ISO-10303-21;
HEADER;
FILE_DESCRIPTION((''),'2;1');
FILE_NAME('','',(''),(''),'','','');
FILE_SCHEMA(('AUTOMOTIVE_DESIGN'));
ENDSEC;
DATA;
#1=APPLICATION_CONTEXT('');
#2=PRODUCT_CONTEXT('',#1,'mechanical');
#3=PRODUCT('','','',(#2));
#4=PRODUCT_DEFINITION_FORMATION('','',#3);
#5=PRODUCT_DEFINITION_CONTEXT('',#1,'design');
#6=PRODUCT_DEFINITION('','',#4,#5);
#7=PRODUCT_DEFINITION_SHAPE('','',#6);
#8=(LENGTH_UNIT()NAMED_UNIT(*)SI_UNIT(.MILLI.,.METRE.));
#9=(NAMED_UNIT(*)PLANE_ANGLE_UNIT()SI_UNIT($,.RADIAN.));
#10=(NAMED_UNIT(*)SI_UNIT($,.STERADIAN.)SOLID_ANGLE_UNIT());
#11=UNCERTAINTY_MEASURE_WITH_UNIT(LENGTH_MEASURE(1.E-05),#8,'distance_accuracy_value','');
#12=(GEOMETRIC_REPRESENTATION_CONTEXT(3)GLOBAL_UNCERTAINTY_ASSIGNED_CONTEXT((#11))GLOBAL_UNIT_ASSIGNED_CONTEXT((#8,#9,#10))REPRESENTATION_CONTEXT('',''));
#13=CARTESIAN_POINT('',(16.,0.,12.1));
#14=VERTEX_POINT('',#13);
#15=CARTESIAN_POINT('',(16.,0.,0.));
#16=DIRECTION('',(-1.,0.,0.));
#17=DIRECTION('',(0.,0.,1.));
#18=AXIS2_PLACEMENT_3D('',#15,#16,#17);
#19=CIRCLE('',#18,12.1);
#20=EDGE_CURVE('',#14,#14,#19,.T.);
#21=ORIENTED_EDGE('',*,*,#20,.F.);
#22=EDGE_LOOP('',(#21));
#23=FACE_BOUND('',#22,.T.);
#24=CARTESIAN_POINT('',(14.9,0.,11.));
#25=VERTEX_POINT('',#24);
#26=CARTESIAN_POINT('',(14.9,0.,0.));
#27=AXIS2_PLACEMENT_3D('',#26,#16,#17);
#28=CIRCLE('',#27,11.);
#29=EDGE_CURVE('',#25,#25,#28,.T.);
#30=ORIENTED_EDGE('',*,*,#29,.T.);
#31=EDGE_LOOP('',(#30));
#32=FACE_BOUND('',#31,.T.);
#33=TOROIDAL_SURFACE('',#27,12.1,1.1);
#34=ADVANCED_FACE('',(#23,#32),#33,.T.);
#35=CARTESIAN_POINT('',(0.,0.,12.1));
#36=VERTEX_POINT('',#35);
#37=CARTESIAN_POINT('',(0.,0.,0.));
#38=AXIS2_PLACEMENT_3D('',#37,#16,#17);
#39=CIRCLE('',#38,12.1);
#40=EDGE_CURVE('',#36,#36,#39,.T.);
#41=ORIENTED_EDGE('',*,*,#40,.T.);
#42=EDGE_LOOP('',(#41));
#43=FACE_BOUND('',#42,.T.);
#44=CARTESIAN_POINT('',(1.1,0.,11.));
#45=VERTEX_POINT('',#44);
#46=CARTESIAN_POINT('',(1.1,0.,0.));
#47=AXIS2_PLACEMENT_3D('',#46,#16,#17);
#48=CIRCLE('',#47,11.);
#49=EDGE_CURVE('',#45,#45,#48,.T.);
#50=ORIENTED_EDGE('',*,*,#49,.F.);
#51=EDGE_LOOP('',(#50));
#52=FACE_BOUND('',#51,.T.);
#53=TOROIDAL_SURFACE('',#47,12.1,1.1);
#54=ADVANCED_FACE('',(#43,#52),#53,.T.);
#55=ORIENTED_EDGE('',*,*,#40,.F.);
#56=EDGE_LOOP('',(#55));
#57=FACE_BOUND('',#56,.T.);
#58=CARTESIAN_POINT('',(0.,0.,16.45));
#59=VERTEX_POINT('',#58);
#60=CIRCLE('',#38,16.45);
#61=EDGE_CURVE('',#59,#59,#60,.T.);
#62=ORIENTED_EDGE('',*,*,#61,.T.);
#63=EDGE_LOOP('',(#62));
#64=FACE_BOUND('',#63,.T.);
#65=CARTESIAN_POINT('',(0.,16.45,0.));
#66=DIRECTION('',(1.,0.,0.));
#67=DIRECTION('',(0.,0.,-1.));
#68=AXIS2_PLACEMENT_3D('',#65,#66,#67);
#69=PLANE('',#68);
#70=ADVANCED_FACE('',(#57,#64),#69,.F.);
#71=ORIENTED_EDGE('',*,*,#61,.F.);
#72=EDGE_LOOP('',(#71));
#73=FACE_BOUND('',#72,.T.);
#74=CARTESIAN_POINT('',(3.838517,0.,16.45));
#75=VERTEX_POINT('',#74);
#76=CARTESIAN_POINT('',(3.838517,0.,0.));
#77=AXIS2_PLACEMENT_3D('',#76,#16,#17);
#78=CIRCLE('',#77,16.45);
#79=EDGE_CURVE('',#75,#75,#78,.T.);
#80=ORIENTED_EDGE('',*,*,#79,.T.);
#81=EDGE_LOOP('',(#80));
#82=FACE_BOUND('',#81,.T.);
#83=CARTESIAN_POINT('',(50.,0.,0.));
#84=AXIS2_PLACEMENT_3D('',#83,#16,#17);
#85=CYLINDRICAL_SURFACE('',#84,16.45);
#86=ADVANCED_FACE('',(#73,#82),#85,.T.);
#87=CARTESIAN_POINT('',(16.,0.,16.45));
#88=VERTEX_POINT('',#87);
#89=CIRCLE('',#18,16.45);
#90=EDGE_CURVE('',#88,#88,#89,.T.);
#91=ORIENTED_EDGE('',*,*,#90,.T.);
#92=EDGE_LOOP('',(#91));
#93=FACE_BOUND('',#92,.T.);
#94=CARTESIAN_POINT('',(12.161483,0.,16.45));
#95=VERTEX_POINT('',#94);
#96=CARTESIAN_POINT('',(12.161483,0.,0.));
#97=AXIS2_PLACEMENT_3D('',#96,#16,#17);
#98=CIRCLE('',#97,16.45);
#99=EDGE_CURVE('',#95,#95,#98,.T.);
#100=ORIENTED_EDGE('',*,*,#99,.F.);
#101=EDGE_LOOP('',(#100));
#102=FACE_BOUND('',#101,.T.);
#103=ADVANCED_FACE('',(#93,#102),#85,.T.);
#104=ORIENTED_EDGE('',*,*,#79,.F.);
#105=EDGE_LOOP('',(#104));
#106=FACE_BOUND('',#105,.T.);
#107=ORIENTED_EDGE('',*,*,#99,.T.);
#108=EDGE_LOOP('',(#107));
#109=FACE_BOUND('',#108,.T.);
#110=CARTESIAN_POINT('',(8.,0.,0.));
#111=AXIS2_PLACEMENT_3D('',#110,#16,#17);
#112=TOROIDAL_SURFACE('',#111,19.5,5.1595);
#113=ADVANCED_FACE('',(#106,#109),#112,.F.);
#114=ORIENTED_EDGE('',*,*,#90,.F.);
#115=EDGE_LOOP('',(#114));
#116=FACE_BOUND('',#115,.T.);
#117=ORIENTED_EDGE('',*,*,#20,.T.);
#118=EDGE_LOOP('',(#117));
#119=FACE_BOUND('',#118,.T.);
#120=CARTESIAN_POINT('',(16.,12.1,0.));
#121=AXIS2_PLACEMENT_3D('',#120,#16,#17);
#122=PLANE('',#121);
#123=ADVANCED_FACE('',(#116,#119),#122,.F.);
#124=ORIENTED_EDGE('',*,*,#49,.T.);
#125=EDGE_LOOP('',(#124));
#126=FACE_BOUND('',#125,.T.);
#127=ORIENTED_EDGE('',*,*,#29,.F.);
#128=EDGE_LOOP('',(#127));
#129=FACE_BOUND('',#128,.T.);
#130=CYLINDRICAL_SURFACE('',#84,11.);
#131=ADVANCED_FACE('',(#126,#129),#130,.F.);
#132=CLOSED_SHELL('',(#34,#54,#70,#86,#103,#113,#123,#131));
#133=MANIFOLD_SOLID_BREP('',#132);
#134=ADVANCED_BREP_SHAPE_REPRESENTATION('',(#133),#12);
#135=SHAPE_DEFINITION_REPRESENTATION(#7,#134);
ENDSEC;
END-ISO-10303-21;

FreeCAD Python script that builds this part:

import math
import FreeCAD as App
import Part
import Sketcher
from FreeCAD import Vector

doc = App.newDocument("Part")
params = doc.addObject("Spreadsheet::Sheet", "Params")
for row, (alias, value) in enumerate([
    ("sketch1_radius", "1.1 mm"),
    ("sketch1_width", "13.8 mm"),
    ("sketch1_height", "4.35 mm"),
    ("revolution_angle", "360 deg"),
], start=1):
    params.set(f"A{row}", alias)
    params.set(f"B{row}", "=" + value)
    params.setAlias(f"B{row}", alias)

body = doc.addObject("PartDesign::Body", "Body")

# Sketch on XY plane
sketch1 = body.newObject("Sketcher::SketchObject", "Sketch")
sketch1.AttachmentSupport = (doc.getObject("XY_Plane"), [""])
sketch1.MapMode = "FlatFace"
sketch1.addGeometry([
    Part.LineSegment(Vector(1.1, 11, 0), Vector(14.9, 11, 0)),  # 0
    Part.ArcOfCircle(Part.Circle(Vector(14.9, 12.1, 0), Vector(0, 0, 1), 1.1), math.radians(-90), math.radians(0)),  # 1
    Part.LineSegment(Vector(16, 12.1, 0), Vector(16, 16.4, 0)),  # 2
    Part.LineSegment(Vector(16, 16.4, 0), Vector(12.2, 16.4, 0)),  # 3
    Part.ArcOfCircle(Part.Circle(Vector(8, 19.5, 0), Vector(0, 0, 1), 5.2), math.radians(-144), math.radians(-36)),  # 4
    Part.LineSegment(Vector(3.8, 16.4, 0), Vector(0, 16.4, 0)),  # 5
    Part.LineSegment(Vector(0, 16.4, 0), Vector(0, 12.1, 0)),  # 6
    Part.ArcOfCircle(Part.Circle(Vector(1.1, 12.1, 0), Vector(0, 0, 1), 1.1), math.radians(-180), math.radians(-90)),  # 7
], False)
sketch1.addConstraint([
    Sketcher.Constraint("Tangent", 0, 2, 1, 1),
    Sketcher.Constraint("Tangent", 1, 2, 2, 1),
    Sketcher.Constraint("Coincident", 2, 2, 3, 1),
    Sketcher.Constraint("Coincident", 3, 2, 4, 2),
    Sketcher.Constraint("Coincident", 4, 1, 5, 1),
    Sketcher.Constraint("Coincident", 5, 2, 6, 1),
    Sketcher.Constraint("Tangent", 6, 2, 7, 1),
    Sketcher.Constraint("Tangent", 7, 2, 0, 1),
    Sketcher.Constraint("Horizontal", 0),
    Sketcher.Constraint("Vertical", 2),
    Sketcher.Constraint("Horizontal", 3),
    Sketcher.Constraint("Horizontal", 5),
    Sketcher.Constraint("Vertical", 6),
    Sketcher.Constraint("Equal", 1, 7),
    Sketcher.Constraint("PointOnObject", 5, 2, -2),
    Sketcher.Constraint("Horizontal", 3, 2, 4, 1),
    Sketcher.Constraint("Equal", 3, 5),
    Sketcher.Constraint("Radius", 1, 1.1),
    Sketcher.Constraint("DistanceX", 0, 1, 0, 2, 13.8),
    Sketcher.Constraint("DistanceY", -1, 1, 0, 2, 11.0),
    Sketcher.Constraint("DistanceY", 2, 1, 2, 2, 4.35),
    Sketcher.Constraint("DistanceY", -1, 1, 4, 3, 19.5),
    Sketcher.Constraint("Radius", 4, 5.1595),
])
sketch1.setExpression("Constraints[17]", "Params.sketch1_radius")
sketch1.setExpression("Constraints[18]", "Params.sketch1_width")
sketch1.setExpression("Constraints[20]", "Params.sketch1_height")
revolution = body.newObject("PartDesign::Revolution", "Revolution")
revolution.Profile = sketch1
revolution.ReferenceAxis = (sketch1, ["H_Axis"])
revolution.setExpression("Angle", "Params.revolution_angle")

doc.recompute()
